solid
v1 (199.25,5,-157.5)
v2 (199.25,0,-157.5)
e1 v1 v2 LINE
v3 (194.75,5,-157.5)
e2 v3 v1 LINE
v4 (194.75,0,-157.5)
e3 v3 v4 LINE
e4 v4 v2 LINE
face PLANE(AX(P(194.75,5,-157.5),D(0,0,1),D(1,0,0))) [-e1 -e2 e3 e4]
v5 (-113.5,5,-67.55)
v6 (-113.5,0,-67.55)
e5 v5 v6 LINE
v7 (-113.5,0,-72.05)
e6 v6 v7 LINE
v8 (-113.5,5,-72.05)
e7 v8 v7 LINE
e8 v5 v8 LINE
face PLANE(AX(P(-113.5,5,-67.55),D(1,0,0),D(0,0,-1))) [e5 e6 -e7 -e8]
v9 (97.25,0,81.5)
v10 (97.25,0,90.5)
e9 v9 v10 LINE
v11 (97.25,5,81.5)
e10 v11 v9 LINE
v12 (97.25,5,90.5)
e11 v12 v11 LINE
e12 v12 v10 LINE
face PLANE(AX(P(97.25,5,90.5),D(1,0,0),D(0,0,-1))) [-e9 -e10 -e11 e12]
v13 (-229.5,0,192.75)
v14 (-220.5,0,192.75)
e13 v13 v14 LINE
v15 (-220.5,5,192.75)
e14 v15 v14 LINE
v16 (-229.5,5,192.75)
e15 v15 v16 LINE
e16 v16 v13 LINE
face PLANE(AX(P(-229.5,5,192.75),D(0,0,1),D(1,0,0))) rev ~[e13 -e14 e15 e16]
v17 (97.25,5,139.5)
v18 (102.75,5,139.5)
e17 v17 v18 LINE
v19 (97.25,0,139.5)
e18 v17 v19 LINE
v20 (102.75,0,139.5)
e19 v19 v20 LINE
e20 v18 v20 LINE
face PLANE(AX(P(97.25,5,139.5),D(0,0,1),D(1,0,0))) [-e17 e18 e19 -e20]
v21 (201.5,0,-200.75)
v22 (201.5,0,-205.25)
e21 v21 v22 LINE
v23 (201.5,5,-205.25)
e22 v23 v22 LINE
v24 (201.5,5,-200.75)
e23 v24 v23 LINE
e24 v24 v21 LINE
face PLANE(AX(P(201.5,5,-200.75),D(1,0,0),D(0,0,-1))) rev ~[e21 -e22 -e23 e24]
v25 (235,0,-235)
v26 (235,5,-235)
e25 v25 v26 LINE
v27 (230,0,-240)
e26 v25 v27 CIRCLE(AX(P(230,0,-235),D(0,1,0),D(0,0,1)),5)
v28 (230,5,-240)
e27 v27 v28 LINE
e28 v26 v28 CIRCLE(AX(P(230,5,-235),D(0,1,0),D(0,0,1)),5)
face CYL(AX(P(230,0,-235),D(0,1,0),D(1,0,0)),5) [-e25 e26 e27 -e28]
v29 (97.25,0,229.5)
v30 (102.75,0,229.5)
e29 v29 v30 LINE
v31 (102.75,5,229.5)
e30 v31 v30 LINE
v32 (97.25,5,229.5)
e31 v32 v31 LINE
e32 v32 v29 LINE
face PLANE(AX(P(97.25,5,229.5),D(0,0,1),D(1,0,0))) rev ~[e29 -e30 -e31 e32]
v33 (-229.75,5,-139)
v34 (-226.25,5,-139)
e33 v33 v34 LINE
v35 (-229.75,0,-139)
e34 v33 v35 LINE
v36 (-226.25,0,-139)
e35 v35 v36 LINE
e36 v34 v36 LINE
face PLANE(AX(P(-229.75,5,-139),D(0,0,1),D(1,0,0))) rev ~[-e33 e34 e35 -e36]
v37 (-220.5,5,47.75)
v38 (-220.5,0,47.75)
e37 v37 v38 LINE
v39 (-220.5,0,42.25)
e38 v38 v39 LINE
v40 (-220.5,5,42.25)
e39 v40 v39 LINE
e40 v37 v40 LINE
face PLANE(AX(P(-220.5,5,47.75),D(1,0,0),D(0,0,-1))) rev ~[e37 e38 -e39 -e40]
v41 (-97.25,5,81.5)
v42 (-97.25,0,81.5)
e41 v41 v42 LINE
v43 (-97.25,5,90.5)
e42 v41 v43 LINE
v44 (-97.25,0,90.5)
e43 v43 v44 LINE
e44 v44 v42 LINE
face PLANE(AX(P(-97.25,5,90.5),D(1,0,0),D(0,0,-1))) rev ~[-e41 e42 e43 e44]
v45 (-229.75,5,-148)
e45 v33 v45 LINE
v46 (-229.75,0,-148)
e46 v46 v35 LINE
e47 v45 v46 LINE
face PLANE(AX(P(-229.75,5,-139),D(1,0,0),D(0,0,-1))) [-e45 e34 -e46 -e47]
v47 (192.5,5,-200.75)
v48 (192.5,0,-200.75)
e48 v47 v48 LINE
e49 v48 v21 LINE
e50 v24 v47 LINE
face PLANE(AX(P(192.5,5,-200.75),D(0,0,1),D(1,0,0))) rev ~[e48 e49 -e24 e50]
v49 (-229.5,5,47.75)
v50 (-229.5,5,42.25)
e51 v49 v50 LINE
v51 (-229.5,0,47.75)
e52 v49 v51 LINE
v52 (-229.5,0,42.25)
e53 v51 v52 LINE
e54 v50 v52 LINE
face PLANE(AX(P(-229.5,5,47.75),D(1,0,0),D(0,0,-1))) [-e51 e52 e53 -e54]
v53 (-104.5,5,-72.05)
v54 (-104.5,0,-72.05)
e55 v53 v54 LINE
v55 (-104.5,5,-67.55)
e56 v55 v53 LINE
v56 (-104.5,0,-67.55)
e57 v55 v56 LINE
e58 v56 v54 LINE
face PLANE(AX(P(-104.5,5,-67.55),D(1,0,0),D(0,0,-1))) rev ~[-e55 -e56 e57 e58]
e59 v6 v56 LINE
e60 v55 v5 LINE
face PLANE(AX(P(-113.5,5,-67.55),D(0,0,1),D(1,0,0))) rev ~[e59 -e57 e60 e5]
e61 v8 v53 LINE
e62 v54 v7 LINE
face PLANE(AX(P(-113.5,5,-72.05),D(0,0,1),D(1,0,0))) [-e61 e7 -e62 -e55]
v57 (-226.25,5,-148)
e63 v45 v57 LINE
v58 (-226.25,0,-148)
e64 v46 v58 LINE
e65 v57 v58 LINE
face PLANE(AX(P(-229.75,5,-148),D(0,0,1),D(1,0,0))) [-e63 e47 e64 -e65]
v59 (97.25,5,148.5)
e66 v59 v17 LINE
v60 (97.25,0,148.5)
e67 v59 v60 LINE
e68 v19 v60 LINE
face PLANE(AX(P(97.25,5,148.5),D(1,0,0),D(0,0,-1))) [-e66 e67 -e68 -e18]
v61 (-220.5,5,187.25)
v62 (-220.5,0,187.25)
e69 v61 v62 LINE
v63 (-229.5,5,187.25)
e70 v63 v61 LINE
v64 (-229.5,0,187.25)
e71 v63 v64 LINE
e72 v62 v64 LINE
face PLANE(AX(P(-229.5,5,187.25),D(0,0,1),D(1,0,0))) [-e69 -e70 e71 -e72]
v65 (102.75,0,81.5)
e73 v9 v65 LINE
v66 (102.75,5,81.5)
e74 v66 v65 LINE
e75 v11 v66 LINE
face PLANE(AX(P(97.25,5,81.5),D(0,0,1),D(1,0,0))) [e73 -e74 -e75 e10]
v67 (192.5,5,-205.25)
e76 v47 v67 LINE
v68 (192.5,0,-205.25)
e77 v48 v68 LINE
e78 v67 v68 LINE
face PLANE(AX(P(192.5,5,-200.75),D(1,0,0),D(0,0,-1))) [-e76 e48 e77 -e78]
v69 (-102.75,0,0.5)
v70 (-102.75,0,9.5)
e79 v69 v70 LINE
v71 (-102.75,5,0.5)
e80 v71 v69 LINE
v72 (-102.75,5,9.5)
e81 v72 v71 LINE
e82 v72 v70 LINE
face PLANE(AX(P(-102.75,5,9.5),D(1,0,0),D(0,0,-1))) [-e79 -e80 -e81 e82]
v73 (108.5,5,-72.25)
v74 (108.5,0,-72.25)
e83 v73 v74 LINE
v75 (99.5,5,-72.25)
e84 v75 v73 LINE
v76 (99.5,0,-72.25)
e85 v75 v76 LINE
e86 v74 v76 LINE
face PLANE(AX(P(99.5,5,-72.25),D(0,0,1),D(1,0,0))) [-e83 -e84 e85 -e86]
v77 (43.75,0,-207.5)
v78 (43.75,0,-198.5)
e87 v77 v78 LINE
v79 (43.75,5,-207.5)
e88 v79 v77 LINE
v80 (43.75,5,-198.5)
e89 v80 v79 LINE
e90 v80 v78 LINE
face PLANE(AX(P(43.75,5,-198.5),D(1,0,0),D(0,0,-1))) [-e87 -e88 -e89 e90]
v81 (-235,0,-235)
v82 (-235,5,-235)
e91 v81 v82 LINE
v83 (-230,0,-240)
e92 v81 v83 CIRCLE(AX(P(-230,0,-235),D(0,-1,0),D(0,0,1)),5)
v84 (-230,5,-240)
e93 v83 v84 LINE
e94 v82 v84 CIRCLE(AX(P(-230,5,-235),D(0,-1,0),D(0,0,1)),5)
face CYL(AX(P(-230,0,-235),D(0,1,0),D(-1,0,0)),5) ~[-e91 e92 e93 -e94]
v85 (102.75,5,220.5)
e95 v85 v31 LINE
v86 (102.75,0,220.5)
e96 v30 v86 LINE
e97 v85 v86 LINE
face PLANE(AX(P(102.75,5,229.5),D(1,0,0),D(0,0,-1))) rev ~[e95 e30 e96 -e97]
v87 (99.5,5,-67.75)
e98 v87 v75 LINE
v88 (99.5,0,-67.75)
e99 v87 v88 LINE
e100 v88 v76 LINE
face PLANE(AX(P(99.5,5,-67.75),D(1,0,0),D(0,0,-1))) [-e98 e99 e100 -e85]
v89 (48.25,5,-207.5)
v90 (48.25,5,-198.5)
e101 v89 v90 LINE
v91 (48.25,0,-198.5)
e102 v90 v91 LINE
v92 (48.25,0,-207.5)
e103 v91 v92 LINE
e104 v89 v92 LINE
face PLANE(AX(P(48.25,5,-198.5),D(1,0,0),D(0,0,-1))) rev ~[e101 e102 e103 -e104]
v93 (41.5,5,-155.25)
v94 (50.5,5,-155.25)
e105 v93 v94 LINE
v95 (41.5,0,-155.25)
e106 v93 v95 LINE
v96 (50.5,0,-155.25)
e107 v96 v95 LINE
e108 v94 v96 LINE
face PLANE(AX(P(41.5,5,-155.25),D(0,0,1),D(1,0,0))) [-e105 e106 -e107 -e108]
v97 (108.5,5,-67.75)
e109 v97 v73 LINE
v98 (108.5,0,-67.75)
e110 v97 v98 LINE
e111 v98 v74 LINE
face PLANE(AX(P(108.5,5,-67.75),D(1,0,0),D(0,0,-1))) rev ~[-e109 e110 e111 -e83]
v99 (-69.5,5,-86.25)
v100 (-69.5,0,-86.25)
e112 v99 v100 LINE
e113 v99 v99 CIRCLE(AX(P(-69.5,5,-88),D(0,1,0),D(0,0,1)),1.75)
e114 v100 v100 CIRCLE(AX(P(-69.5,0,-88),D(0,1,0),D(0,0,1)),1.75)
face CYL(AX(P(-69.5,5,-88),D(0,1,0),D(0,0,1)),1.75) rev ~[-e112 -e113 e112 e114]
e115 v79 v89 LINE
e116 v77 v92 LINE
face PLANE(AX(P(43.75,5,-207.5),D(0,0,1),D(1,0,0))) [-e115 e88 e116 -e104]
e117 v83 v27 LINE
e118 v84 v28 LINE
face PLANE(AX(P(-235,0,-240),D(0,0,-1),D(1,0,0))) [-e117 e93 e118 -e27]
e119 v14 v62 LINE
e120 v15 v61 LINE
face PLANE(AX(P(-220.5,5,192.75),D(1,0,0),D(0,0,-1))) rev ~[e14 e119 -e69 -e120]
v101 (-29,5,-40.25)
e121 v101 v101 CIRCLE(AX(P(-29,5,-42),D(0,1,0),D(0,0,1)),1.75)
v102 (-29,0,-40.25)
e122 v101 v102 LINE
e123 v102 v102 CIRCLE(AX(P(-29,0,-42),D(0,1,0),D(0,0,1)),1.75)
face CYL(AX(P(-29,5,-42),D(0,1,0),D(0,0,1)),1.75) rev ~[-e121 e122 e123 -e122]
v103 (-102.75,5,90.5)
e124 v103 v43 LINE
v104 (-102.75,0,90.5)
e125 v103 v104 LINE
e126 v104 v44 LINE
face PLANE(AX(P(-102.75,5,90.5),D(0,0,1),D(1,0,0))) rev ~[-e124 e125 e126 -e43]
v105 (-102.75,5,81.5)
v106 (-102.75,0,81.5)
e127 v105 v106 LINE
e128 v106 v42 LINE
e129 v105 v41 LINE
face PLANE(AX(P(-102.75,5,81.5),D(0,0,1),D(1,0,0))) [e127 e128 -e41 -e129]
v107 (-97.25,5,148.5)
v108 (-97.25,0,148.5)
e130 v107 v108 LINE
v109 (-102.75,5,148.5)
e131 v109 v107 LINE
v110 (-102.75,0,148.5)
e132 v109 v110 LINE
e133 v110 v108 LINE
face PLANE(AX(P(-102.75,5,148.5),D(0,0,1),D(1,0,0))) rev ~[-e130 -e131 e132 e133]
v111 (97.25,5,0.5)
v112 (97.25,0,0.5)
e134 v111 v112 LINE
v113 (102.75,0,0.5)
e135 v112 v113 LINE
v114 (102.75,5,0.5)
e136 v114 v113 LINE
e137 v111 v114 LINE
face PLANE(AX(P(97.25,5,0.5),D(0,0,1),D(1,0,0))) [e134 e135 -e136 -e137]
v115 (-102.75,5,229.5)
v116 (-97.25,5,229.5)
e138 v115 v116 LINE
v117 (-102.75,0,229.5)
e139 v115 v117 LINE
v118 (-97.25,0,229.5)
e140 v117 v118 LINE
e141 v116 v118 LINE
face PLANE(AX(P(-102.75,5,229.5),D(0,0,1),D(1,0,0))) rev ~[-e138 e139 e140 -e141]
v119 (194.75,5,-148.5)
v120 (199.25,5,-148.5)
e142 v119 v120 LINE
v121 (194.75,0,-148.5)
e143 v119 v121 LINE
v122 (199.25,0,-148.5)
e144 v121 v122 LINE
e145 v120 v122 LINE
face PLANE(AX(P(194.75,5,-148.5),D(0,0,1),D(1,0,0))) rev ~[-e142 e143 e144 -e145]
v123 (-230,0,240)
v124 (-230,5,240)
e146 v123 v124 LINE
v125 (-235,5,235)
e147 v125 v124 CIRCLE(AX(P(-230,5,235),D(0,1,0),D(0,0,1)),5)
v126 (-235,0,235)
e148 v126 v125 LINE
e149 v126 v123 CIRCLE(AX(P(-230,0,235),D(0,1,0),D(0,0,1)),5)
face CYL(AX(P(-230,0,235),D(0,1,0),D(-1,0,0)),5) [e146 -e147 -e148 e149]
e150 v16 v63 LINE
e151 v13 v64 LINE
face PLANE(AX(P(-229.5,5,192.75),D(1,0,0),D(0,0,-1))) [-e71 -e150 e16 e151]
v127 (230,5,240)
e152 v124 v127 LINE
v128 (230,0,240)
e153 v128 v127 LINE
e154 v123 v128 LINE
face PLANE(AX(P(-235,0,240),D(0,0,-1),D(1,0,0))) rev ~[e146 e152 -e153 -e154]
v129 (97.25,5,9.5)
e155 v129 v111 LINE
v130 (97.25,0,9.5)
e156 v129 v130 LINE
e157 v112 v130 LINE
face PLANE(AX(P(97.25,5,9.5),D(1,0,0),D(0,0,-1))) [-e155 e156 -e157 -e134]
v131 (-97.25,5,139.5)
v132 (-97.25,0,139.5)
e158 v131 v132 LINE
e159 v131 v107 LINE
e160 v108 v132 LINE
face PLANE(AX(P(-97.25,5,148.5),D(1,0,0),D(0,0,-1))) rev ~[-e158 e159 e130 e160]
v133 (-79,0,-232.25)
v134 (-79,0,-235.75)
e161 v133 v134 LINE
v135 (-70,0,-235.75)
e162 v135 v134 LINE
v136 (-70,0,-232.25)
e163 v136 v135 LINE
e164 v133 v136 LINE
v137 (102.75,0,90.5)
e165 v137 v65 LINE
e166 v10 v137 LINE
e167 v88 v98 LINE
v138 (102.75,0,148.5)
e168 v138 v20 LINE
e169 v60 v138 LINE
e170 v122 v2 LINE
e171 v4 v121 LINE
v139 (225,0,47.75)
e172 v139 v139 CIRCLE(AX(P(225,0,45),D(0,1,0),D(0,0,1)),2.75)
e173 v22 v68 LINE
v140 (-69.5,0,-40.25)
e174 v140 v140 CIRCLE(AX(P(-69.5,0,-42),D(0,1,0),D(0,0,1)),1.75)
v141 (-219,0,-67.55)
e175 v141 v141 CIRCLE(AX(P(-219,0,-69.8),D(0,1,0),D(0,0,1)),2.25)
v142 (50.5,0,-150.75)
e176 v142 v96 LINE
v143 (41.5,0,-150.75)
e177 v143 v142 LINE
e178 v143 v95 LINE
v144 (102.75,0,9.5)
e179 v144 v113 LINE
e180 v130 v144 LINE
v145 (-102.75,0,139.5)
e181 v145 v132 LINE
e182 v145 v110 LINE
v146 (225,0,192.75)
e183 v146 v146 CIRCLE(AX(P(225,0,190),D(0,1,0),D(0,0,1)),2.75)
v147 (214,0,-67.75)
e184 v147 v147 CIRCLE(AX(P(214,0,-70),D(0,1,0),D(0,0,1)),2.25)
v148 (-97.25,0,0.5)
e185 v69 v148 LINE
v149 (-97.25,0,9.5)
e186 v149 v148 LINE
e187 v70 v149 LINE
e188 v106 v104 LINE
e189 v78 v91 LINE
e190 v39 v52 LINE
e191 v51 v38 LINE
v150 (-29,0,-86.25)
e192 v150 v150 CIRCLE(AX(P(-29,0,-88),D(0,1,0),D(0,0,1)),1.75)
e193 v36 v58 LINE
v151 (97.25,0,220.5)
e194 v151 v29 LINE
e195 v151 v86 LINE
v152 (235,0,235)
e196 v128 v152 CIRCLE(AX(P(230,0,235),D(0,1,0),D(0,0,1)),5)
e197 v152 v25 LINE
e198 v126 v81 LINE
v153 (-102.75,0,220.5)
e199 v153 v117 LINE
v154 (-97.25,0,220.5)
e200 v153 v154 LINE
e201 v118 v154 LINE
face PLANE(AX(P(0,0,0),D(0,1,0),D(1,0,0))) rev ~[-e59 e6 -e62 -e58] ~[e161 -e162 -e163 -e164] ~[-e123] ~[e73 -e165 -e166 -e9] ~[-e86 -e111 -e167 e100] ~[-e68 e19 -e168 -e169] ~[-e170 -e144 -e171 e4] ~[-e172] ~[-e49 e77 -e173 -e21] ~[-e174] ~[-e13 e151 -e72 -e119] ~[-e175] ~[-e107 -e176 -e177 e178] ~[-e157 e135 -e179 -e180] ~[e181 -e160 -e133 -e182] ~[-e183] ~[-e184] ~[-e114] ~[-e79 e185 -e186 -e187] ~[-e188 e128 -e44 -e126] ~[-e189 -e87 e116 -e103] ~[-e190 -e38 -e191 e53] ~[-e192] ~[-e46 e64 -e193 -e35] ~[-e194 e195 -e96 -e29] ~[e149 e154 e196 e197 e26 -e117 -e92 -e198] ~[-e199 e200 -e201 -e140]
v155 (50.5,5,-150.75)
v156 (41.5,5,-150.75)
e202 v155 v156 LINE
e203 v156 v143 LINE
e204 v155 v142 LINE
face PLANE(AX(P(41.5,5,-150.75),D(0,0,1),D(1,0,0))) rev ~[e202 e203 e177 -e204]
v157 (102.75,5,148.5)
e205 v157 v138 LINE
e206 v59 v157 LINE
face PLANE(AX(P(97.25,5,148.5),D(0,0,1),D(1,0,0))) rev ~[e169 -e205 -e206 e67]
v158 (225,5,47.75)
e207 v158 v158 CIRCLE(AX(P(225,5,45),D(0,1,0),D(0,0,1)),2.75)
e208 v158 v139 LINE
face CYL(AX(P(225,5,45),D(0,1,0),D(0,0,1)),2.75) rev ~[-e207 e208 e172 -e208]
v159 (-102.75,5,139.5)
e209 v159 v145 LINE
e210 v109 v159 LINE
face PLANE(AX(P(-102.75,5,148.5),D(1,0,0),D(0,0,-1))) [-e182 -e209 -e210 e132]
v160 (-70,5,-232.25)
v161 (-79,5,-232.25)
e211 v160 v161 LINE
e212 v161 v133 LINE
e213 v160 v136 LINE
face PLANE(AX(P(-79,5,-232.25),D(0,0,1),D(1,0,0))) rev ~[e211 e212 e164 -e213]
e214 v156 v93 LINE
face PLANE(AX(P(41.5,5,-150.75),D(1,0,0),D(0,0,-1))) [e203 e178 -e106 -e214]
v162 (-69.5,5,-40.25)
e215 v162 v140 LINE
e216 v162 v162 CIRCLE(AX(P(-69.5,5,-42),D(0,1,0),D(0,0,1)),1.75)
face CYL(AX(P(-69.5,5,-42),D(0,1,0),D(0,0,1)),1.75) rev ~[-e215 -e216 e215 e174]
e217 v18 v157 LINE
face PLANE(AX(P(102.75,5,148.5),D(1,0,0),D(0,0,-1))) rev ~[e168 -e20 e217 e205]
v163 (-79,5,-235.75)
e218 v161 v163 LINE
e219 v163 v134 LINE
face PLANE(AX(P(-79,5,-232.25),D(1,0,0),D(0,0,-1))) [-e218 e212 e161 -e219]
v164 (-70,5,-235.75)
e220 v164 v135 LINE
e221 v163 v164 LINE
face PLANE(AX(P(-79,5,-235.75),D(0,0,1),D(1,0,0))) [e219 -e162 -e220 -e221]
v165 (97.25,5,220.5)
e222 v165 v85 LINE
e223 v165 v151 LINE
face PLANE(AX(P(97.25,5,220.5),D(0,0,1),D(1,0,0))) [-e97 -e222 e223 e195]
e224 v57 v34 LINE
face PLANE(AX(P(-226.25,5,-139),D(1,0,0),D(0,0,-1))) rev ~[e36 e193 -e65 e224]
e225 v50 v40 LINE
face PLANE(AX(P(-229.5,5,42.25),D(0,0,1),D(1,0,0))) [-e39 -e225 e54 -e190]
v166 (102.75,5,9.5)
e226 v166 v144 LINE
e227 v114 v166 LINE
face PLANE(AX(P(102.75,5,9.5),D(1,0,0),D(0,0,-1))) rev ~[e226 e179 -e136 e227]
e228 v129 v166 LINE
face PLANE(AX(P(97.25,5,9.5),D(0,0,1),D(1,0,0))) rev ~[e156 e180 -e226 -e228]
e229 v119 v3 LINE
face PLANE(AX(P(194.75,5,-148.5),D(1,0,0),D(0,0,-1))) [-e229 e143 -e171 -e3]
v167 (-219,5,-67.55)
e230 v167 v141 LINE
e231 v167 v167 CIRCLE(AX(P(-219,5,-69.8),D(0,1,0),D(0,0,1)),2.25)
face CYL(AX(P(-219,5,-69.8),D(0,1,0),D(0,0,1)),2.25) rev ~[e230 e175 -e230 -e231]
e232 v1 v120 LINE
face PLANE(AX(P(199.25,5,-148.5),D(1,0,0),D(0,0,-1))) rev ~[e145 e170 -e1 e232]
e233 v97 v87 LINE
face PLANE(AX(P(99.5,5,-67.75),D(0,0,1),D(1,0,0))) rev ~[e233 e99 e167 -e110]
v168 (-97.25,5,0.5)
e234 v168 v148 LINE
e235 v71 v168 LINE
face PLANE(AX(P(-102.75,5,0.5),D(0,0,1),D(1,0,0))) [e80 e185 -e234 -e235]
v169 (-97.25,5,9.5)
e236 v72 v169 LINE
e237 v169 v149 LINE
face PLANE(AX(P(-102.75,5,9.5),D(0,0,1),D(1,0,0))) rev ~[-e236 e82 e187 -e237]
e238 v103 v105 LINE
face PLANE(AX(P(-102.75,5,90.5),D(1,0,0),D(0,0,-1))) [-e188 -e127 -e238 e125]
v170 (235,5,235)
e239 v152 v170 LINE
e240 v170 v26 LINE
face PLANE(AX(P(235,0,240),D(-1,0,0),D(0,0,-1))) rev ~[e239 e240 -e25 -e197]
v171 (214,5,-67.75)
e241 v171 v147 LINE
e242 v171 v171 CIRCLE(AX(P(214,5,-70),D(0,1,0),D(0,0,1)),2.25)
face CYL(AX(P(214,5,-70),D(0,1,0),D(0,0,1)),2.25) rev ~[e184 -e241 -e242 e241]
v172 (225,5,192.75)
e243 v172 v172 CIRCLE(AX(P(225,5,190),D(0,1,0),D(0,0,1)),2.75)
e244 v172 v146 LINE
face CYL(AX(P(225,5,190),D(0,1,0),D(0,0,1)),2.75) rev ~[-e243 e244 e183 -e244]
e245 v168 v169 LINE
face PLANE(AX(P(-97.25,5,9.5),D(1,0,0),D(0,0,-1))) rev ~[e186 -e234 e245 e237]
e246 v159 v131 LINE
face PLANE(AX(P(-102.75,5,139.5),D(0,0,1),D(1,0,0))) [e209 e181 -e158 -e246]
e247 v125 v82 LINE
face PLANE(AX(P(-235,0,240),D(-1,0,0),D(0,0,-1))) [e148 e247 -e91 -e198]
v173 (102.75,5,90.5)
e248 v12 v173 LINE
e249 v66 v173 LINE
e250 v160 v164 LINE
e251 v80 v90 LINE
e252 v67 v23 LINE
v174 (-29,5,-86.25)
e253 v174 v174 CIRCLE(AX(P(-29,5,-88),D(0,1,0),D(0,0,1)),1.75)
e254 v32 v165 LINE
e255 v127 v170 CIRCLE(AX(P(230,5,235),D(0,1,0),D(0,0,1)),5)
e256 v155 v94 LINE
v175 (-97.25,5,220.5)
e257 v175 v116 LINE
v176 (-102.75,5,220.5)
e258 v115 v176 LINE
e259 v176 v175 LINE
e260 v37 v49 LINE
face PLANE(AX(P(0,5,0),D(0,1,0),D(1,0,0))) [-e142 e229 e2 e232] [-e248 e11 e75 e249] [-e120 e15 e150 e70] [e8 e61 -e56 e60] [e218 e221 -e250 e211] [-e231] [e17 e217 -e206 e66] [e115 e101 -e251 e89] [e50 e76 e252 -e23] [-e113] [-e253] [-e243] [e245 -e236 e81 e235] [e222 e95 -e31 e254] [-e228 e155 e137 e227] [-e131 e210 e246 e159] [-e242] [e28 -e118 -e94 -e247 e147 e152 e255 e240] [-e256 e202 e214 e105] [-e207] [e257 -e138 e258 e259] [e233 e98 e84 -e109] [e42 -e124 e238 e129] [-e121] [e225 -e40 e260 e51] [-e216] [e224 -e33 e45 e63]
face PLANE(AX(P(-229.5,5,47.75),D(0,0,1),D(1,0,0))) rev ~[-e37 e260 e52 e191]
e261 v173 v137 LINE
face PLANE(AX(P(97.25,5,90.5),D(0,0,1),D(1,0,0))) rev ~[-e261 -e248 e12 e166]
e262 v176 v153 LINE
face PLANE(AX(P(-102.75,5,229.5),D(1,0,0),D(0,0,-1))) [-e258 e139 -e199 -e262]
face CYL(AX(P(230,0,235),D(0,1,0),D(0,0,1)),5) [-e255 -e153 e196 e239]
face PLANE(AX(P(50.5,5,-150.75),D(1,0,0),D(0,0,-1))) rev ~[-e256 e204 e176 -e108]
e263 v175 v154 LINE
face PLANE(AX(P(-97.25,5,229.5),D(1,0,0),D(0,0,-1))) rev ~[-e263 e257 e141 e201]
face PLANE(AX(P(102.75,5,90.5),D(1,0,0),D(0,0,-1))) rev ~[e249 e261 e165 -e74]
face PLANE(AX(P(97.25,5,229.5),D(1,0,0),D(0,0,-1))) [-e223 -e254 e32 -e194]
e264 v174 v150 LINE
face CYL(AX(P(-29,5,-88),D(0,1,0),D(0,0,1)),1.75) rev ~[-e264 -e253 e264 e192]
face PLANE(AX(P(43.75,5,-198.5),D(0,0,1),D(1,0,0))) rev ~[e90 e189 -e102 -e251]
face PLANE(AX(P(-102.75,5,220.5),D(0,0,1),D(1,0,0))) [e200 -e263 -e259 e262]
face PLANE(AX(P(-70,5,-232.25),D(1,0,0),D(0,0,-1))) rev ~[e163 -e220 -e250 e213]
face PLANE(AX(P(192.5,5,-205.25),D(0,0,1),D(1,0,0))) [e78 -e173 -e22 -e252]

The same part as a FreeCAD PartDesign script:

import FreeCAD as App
import Part
import Sketcher
Q = App.Units.Quantity


def edges_at(feature, points):
    """Names of the edges that pass closest to the given points."""
    edges = feature.Shape.Edges
    near = lambda p: min(range(len(edges)), key=lambda i: edges[i].distToShape(Part.Vertex(*p))[0])
    return sorted({f"Edge{near(p) + 1}" for p in points})

doc = App.newDocument("Part")
body = doc.addObject("PartDesign::Body", "Body")

# Sketch on XZ plane
sketch1 = body.newObject("Sketcher::SketchObject", "Sketch")
sketch1.AttachmentSupport = (doc.getObject("XZ_Plane"), [""])
sketch1.MapMode = "FlatFace"
sketch1.addGeometry([
    Part.LineSegment(App.Vector(-235, -240, 0), App.Vector(-235, 240, 0)),
    Part.LineSegment(App.Vector(-235, 240, 0), App.Vector(235, 240, 0)),
    Part.LineSegment(App.Vector(235, 240, 0), App.Vector(235, -240, 0)),
    Part.LineSegment(App.Vector(235, -240, 0), App.Vector(-235, -240, 0)),
], False)
sketch1.addConstraint([
    Sketcher.Constraint("Coincident", 0, 2, 1, 1),
    Sketcher.Constraint("Coincident", 1, 2, 2, 1),
    Sketcher.Constraint("Coincident", 2, 2, 3, 1),
    Sketcher.Constraint("Coincident", 3, 2, 0, 1),
    Sketcher.Constraint("Vertical", 0),
    Sketcher.Constraint("Horizontal", 1),
    Sketcher.Constraint("Vertical", 2),
    Sketcher.Constraint("Horizontal", 3),
    Sketcher.Constraint("Symmetric", 0, 2, 2, 2, -1, 1),
    Sketcher.Constraint("DistanceX", 1, 1, 1, 2, Q("470 mm")),
    Sketcher.Constraint("DistanceY", 0, 1, 0, 2, Q("480 mm")),
])
pad1 = body.newObject("PartDesign::Pad", "Pad")
pad1.Profile = sketch1
pad1.Length = 5
pad1.Reversed = True
doc.recompute()

fillet = body.newObject("PartDesign::Fillet", "Fillet")
fillet.Base = (pad1, edges_at(pad1, [
    (235, 2.5, 240),
    (-235, 2.5, 240),
    (-235, 2.5, -240),
    (235, 2.5, -240),
]))
fillet.Radius = 5

# Sketch on XZ plane
sketch2 = body.newObject("Sketcher::SketchObject", "Sketch001")
sketch2.AttachmentSupport = (doc.getObject("XZ_Plane"), [""])
sketch2.MapMode = "FlatFace"
sketch2.AttachmentOffset = App.Placement(App.Vector(0, 0, -5), App.Rotation())
sketch2.addGeometry([
    Part.Circle(App.Vector(197, -153, 0), App.Vector(0, 0, 1), 2.25),  # 0
    Part.Circle(App.Vector(46, -153, 0), App.Vector(0, 0, 1), 2.25),  # 1
    Part.Circle(App.Vector(197, -203, 0), App.Vector(0, 0, 1), 2.25),  # 2
    Part.Circle(App.Vector(46, -203, 0), App.Vector(0, 0, 1), 2.25),  # 3
    Part.Circle(App.Vector(-228, -143.5, 0), App.Vector(0, 0, 1), 1.75),  # 4
    Part.Circle(App.Vector(-74.5, -234, 0), App.Vector(0, 0, 1), 1.75),  # 5
    Part.Circle(App.Vector(-219, -69.8, 0), App.Vector(0, 0, 1), 2.25),  # 6
    Part.Circle(App.Vector(-109, -69.8, 0), App.Vector(0, 0, 1), 2.25),  # 7
    Part.Circle(App.Vector(-69.5, -42, 0), App.Vector(0, 0, 1), 1.75),  # 8
    Part.Circle(App.Vector(-69.5, -88, 0), App.Vector(0, 0, 1), 1.75),  # 9
    Part.Circle(App.Vector(-29, -42, 0), App.Vector(0, 0, 1), 1.75),  # 10
    Part.Circle(App.Vector(-29, -88, 0), App.Vector(0, 0, 1), 1.75),  # 11
    Part.Circle(App.Vector(214, -70, 0), App.Vector(0, 0, 1), 2.25),  # 12
    Part.Circle(App.Vector(104, -70, 0), App.Vector(0, 0, 1), 2.25),  # 13
    Part.Circle(App.Vector(225, 190, 0), App.Vector(0, 0, 1), 2.75),  # 14
    Part.Circle(App.Vector(225, 45, 0), App.Vector(0, 0, 1), 2.75),  # 15
    Part.Circle(App.Vector(100, 5, 0), App.Vector(0, 0, 1), 2.75),  # 16
    Part.Circle(App.Vector(100, 225, 0), App.Vector(0, 0, 1), 2.75),  # 17
    Part.Circle(App.Vector(100, 144, 0), App.Vector(0, 0, 1), 2.75),  # 18
    Part.Circle(App.Vector(100, 86, 0), App.Vector(0, 0, 1), 2.75),  # 19
    Part.Circle(App.Vector(-100, 5, 0), App.Vector(0, 0, 1), 2.75),  # 20
    Part.Circle(App.Vector(-100, 86, 0), App.Vector(0, 0, 1), 2.75),  # 21
    Part.Circle(App.Vector(-100, 144, 0), App.Vector(0, 0, 1), 2.75),  # 22
    Part.Circle(App.Vector(-100, 225, 0), App.Vector(0, 0, 1), 2.75),  # 23
    Part.Circle(App.Vector(-225, 45, 0), App.Vector(0, 0, 1), 2.75),  # 24
    Part.Circle(App.Vector(-225, 190, 0), App.Vector(0, 0, 1), 2.75),  # 25
], False)
sketch2.addConstraint([
    Sketcher.Constraint("Equal", 0, 1),
    Sketcher.Constraint("Equal", 1, 2),
    Sketcher.Constraint("Equal", 2, 3),
    Sketcher.Constraint("Equal", 4, 5),
    Sketcher.Constraint("Equal", 3, 6),
    Sketcher.Constraint("Equal", 6, 7),
    Sketcher.Constraint("Equal", 5, 8),
    Sketcher.Constraint("Equal", 8, 9),
    Sketcher.Constraint("Equal", 9, 10),
    Sketcher.Constraint("Equal", 10, 11),
    Sketcher.Constraint("Equal", 7, 12),
    Sketcher.Constraint("Equal", 12, 13),
    Sketcher.Constraint("Equal", 14, 15),
    Sketcher.Constraint("Equal", 15, 16),
    Sketcher.Constraint("Equal", 16, 17),
    Sketcher.Constraint("Equal", 17, 18),
    Sketcher.Constraint("Equal", 18, 19),
    Sketcher.Constraint("Equal", 19, 20),
    Sketcher.Constraint("Equal", 20, 21),
    Sketcher.Constraint("Equal", 21, 22),
    Sketcher.Constraint("Equal", 22, 23),
    Sketcher.Constraint("Equal", 23, 24),
    Sketcher.Constraint("Equal", 24, 25),
    Sketcher.Constraint("Symmetric", 16, 3, 20, 3, -2),
    Sketcher.Constraint("Symmetric", 19, 3, 21, 3, -2),
    Sketcher.Constraint("Symmetric", 18, 3, 22, 3, -2),
    Sketcher.Constraint("Symmetric", 17, 3, 23, 3, -2),
    Sketcher.Constraint("Symmetric", 15, 3, 24, 3, -2),
    Sketcher.Constraint("Symmetric", 14, 3, 25, 3, -2),
    Sketcher.Constraint("Horizontal", 0, 3, 1, 3),
    Sketcher.Constraint("Horizontal", 2, 3, 3, 3),
    Sketcher.Constraint("Horizontal", 6, 3, 7, 3),
    Sketcher.Constraint("Horizontal", 8, 3, 10, 3),
    Sketcher.Constraint("Horizontal", 9, 3, 11, 3),
    Sketcher.Constraint("Horizontal", 12, 3, 13, 3),
    Sketcher.Constraint("Vertical", 0, 3, 2, 3),
    Sketcher.Constraint("Vertical", 1, 3, 3, 3),
    Sketcher.Constraint("Vertical", 8, 3, 9, 3),
    Sketcher.Constraint("Vertical", 10, 3, 11, 3),
    Sketcher.Constraint("Vertical", 14, 3, 15, 3),
    Sketcher.Constraint("Vertical", 16, 3, 17, 3),
    Sketcher.Constraint("Vertical", 17, 3, 18, 3),
    Sketcher.Constraint("Vertical", 18, 3, 19, 3),
    Sketcher.Constraint("Diameter", 0, Q("4.5 mm")),
    Sketcher.Constraint("Diameter", 4, Q("3.5 mm")),
    Sketcher.Constraint("Diameter", 14, Q("5.5 mm")),
    Sketcher.Constraint("DistanceX", -1, 1, 0, 3, Q("197 mm")),
    Sketcher.Constraint("DistanceY", 0, 3, -1, 1, Q("153 mm")),
    Sketcher.Constraint("DistanceX", -1, 1, 1, 3, Q("46 mm")),
    Sketcher.Constraint("DistanceY", 2, 3, -1, 1, Q("203 mm")),
    Sketcher.Constraint("DistanceX", 4, 3, -1, 1, Q("228 mm")),
    Sketcher.Constraint("DistanceY", 5, 3, -1, 1, Q("234 mm")),
    Sketcher.Constraint("DistanceX", 6, 3, -1, 1, Q("219 mm")),
    Sketcher.Constraint("DistanceX", 7, 3, -1, 1, Q("109 mm")),
    Sketcher.Constraint("DistanceY", 8, 3, -1, 1, Q("42 mm")),
    Sketcher.Constraint("DistanceY", 9, 3, -1, 1, Q("88 mm")),
    Sketcher.Constraint("DistanceX", 10, 3, -1, 1, Q("29 mm")),
    Sketcher.Constraint("DistanceX", -1, 1, 12, 3, Q("214 mm")),
    Sketcher.Constraint("DistanceY", 12, 3, -1, 1, Q("70 mm")),
    Sketcher.Constraint("DistanceX", -1, 1, 13, 3, Q("104 mm")),
    Sketcher.Constraint("DistanceX", -1, 1, 14, 3, Q("225 mm")),
    Sketcher.Constraint("DistanceY", -1, 1, 14, 3, Q("190 mm")),
    Sketcher.Constraint("DistanceY", -1, 1, 15, 3, Q("45 mm")),
    Sketcher.Constraint("DistanceX", -1, 1, 16, 3, Q("100 mm")),
    Sketcher.Constraint("DistanceY", -1, 1, 16, 3, Q("5 mm")),
    Sketcher.Constraint("DistanceY", -1, 1, 17, 3, Q("225 mm")),
    Sketcher.Constraint("DistanceY", -1, 1, 18, 3, Q("144 mm")),
    Sketcher.Constraint("DistanceY", -1, 1, 19, 3, Q("86 mm")),
    Sketcher.Constraint("DistanceX", 5, 3, 8, 3, Q("5 mm")),
    Sketcher.Constraint("DistanceY", 4, 3, -1, 1, Q("143.5 mm")),
    Sketcher.Constraint("DistanceX", 5, 3, -1, 1, Q("74.5 mm")),
    Sketcher.Constraint("DistanceY", 6, 3, -1, 1, Q("69.8 mm")),
])
pocket1 = body.newObject("PartDesign::Pocket", "Pocket")
pocket1.Profile = sketch2
pocket1.Type = "ThroughAll"
pocket1.Reversed = True

# Sketch on XZ plane
sketch3 = body.newObject("Sketcher::SketchObject", "Sketch002")
sketch3.AttachmentSupport = (doc.getObject("XZ_Plane"), [""])
sketch3.MapMode = "FlatFace"
sketch3.AttachmentOffset = App.Placement(App.Vector(0, 0, -5), App.Rotation())
sketch3.addGeometry([
    Part.LineSegment(App.Vector(99.5, -72.25, 0), App.Vector(99.5, -67.75, 0)),  # 0
    Part.LineSegment(App.Vector(99.5, -67.75, 0), App.Vector(108.5, -67.75, 0)),  # 1
    Part.LineSegment(App.Vector(108.5, -67.75, 0), App.Vector(108.5, -72.25, 0)),  # 2
    Part.LineSegment(App.Vector(108.5, -72.25, 0), App.Vector(99.5, -72.25, 0)),  # 3
    Part.LineSegment(App.Vector(-113.5, -72.05, 0), App.Vector(-113.5, -67.55, 0)),  # 4
    Part.LineSegment(App.Vector(-113.5, -67.55, 0), App.Vector(-104.5, -67.55, 0)),  # 5
    Part.LineSegment(App.Vector(-104.5, -67.55, 0), App.Vector(-104.5, -72.05, 0)),  # 6
    Part.LineSegment(App.Vector(-104.5, -72.05, 0), App.Vector(-113.5, -72.05, 0)),  # 7
    Part.LineSegment(App.Vector(194.75, -157.5, 0), App.Vector(194.75, -148.5, 0)),  # 8
    Part.LineSegment(App.Vector(194.75, -148.5, 0), App.Vector(199.25, -148.5, 0)),  # 9
    Part.LineSegment(App.Vector(199.25, -148.5, 0), App.Vector(199.25, -157.5, 0)),  # 10
    Part.LineSegment(App.Vector(199.25, -157.5, 0), App.Vector(194.75, -157.5, 0)),  # 11
    Part.LineSegment(App.Vector(-79, -235.75, 0), App.Vector(-79, -232.25, 0)),  # 12
    Part.LineSegment(App.Vector(-79, -232.25, 0), App.Vector(-70, -232.25, 0)),  # 13
    Part.LineSegment(App.Vector(-70, -232.25, 0), App.Vector(-70, -235.75, 0)),  # 14
    Part.LineSegment(App.Vector(-70, -235.75, 0), App.Vector(-79, -235.75, 0)),  # 15
    Part.LineSegment(App.Vector(-229.75, -148, 0), App.Vector(-229.75, -139, 0)),  # 16
    Part.LineSegment(App.Vector(-229.75, -139, 0), App.Vector(-226.25, -139, 0)),  # 17
    Part.LineSegment(App.Vector(-226.25, -139, 0), App.Vector(-226.25, -148, 0)),  # 18
    Part.LineSegment(App.Vector(-226.25, -148, 0), App.Vector(-229.75, -148, 0)),  # 19
    Part.LineSegment(App.Vector(192.5, -205.25, 0), App.Vector(192.5, -200.75, 0)),  # 20
    Part.LineSegment(App.Vector(192.5, -200.75, 0), App.Vector(201.5, -200.75, 0)),  # 21
    Part.LineSegment(App.Vector(201.5, -200.75, 0), App.Vector(201.5, -205.25, 0)),  # 22
    Part.LineSegment(App.Vector(201.5, -205.25, 0), App.Vector(192.5, -205.25, 0)),  # 23
    Part.LineSegment(App.Vector(43.75, -207.5, 0), App.Vector(43.75, -198.5, 0)),  # 24
    Part.LineSegment(App.Vector(43.75, -198.5, 0), App.Vector(48.25, -198.5, 0)),  # 25
    Part.LineSegment(App.Vector(48.25, -198.5, 0), App.Vector(48.25, -207.5, 0)),  # 26
    Part.LineSegment(App.Vector(48.25, -207.5, 0), App.Vector(43.75, -207.5, 0)),  # 27
    Part.LineSegment(App.Vector(41.5, -155.25, 0), App.Vector(41.5, -150.75, 0)),  # 28
    Part.LineSegment(App.Vector(41.5, -150.75, 0), App.Vector(50.5, -150.75, 0)),  # 29
    Part.LineSegment(App.Vector(50.5, -150.75, 0), App.Vector(50.5, -155.25, 0)),  # 30
    Part.LineSegment(App.Vector(50.5, -155.25, 0), App.Vector(41.5, -155.25, 0)),  # 31
    Part.LineSegment(App.Vector(97.25, 220.5, 0), App.Vector(97.25, 229.5, 0)),  # 32
    Part.LineSegment(App.Vector(97.25, 229.5, 0), App.Vector(102.75, 229.5, 0)),  # 33
    Part.LineSegment(App.Vector(102.75, 229.5, 0), App.Vector(102.75, 220.5, 0)),  # 34
    Part.LineSegment(App.Vector(102.75, 220.5, 0), App.Vector(97.25, 220.5, 0)),  # 35
    Part.LineSegment(App.Vector(97.25, 139.5, 0), App.Vector(97.25, 148.5, 0)),  # 36
    Part.LineSegment(App.Vector(97.25, 148.5, 0), App.Vector(102.75, 148.5, 0)),  # 37
    Part.LineSegment(App.Vector(102.75, 148.5, 0), App.Vector(102.75, 139.5, 0)),  # 38
    Part.LineSegment(App.Vector(102.75, 139.5, 0), App.Vector(97.25, 139.5, 0)),  # 39
    Part.LineSegment(App.Vector(97.25, 81.5, 0), App.Vector(97.25, 90.5, 0)),  # 40
    Part.LineSegment(App.Vector(97.25, 90.5, 0), App.Vector(102.75, 90.5, 0)),  # 41
    Part.LineSegment(App.Vector(102.75, 90.5, 0), App.Vector(102.75, 81.5, 0)),  # 42
    Part.LineSegment(App.Vector(102.75, 81.5, 0), App.Vector(97.25, 81.5, 0)),  # 43
    Part.LineSegment(App.Vector(97.25, 0.5, 0), App.Vector(97.25, 9.5, 0)),  # 44
    Part.LineSegment(App.Vector(97.25, 9.5, 0), App.Vector(102.75, 9.5, 0)),  # 45
    Part.LineSegment(App.Vector(102.75, 9.5, 0), App.Vector(102.75, 0.5, 0)),  # 46
    Part.LineSegment(App.Vector(102.75, 0.5, 0), App.Vector(97.25, 0.5, 0)),  # 47
    Part.LineSegment(App.Vector(-229.5, 187.25, 0), App.Vector(-229.5, 192.75, 0)),  # 48
    Part.LineSegment(App.Vector(-229.5, 192.75, 0), App.Vector(-220.5, 192.75, 0)),  # 49
    Part.LineSegment(App.Vector(-220.5, 192.75, 0), App.Vector(-220.5, 187.25, 0)),  # 50
    Part.LineSegment(App.Vector(-220.5, 187.25, 0), App.Vector(-229.5, 187.25, 0)),  # 51
    Part.LineSegment(App.Vector(-229.5, 42.25, 0), App.Vector(-229.5, 47.75, 0)),  # 52
    Part.LineSegment(App.Vector(-229.5, 47.75, 0), App.Vector(-220.5, 47.75, 0)),  # 53
    Part.LineSegment(App.Vector(-220.5, 47.75, 0), App.Vector(-220.5, 42.25, 0)),  # 54
    Part.LineSegment(App.Vector(-220.5, 42.25, 0), App.Vector(-229.5, 42.25, 0)),  # 55
    Part.LineSegment(App.Vector(-102.75, 0.5, 0), App.Vector(-102.75, 9.5, 0)),  # 56
    Part.LineSegment(App.Vector(-102.75, 9.5, 0), App.Vector(-97.25, 9.5, 0)),  # 57
    Part.LineSegment(App.Vector(-97.25, 9.5, 0), App.Vector(-97.25, 0.5, 0)),  # 58
    Part.LineSegment(App.Vector(-97.25, 0.5, 0), App.Vector(-102.75, 0.5, 0)),  # 59
    Part.LineSegment(App.Vector(-102.75, 81.5, 0), App.Vector(-102.75, 90.5, 0)),  # 60
    Part.LineSegment(App.Vector(-102.75, 90.5, 0), App.Vector(-97.25, 90.5, 0)),  # 61
    Part.LineSegment(App.Vector(-97.25, 90.5, 0), App.Vector(-97.25, 81.5, 0)),  # 62
    Part.LineSegment(App.Vector(-97.25, 81.5, 0), App.Vector(-102.75, 81.5, 0)),  # 63
    Part.LineSegment(App.Vector(-102.75, 139.5, 0), App.Vector(-102.75, 148.5, 0)),  # 64
    Part.LineSegment(App.Vector(-102.75, 148.5, 0), App.Vector(-97.25, 148.5, 0)),  # 65
    Part.LineSegment(App.Vector(-97.25, 148.5, 0), App.Vector(-97.25, 139.5, 0)),  # 66
    Part.LineSegment(App.Vector(-97.25, 139.5, 0), App.Vector(-102.75, 139.5, 0)),  # 67
    Part.LineSegment(App.Vector(-102.75, 220.5, 0), App.Vector(-102.75, 229.5, 0)),  # 68
    Part.LineSegment(App.Vector(-102.75, 229.5, 0), App.Vector(-97.25, 229.5, 0)),  # 69
    Part.LineSegment(App.Vector(-97.25, 229.5, 0), App.Vector(-97.25, 220.5, 0)),  # 70
    Part.LineSegment(App.Vector(-97.25, 220.5, 0), App.Vector(-102.75, 220.5, 0)),  # 71
], False)
sketch3.addConstraint([
    Sketcher.Constraint("Coincident", 0, 2, 1, 1),
    Sketcher.Constraint("Coincident", 1, 2, 2, 1),
    Sketcher.Constraint("Coincident", 2, 2, 3, 1),
    Sketcher.Constraint("Coincident", 3, 2, 0, 1),
    Sketcher.Constraint("Coincident", 4, 2, 5, 1),
    Sketcher.Constraint("Coincident", 5, 2, 6, 1),
    Sketcher.Constraint("Coincident", 6, 2, 7, 1),
    Sketcher.Constraint("Coincident", 7, 2, 4, 1),
    Sketcher.Constraint("Coincident", 8, 2, 9, 1),
    Sketcher.Constraint("Coincident", 9, 2, 10, 1),
    Sketcher.Constraint("Coincident", 10, 2, 11, 1),
    Sketcher.Constraint("Coincident", 11, 2, 8, 1),
    Sketcher.Constraint("Coincident", 12, 2, 13, 1),
    Sketcher.Constraint("Coincident", 13, 2, 14, 1),
    Sketcher.Constraint("Coincident", 14, 2, 15, 1),
    Sketcher.Constraint("Coincident", 15, 2, 12, 1),
    Sketcher.Constraint("Coincident", 16, 2, 17, 1),
    Sketcher.Constraint("Coincident", 17, 2, 18, 1),
    Sketcher.Constraint("Coincident", 18, 2, 19, 1),
    Sketcher.Constraint("Coincident", 19, 2, 16, 1),
    Sketcher.Constraint("Coincident", 20, 2, 21, 1),
    Sketcher.Constraint("Coincident", 21, 2, 22, 1),
    Sketcher.Constraint("Coincident", 22, 2, 23, 1),
    Sketcher.Constraint("Coincident", 23, 2, 20, 1),
    Sketcher.Constraint("Coincident", 24, 2, 25, 1),
    Sketcher.Constraint("Coincident", 25, 2, 26, 1),
    Sketcher.Constraint("Coincident", 26, 2, 27, 1),
    Sketcher.Constraint("Coincident", 27, 2, 24, 1),
    Sketcher.Constraint("Coincident", 28, 2, 29, 1),
    Sketcher.Constraint("Coincident", 29, 2, 30, 1),
    Sketcher.Constraint("Coincident", 30, 2, 31, 1),
    Sketcher.Constraint("Coincident", 31, 2, 28, 1),
    Sketcher.Constraint("Coincident", 32, 2, 33, 1),
    Sketcher.Constraint("Coincident", 33, 2, 34, 1),
    Sketcher.Constraint("Coincident", 34, 2, 35, 1),
    Sketcher.Constraint("Coincident", 35, 2, 32, 1),
    Sketcher.Constraint("Coincident", 36, 2, 37, 1),
    Sketcher.Constraint("Coincident", 37, 2, 38, 1),
    Sketcher.Constraint("Coincident", 38, 2, 39, 1),
    Sketcher.Constraint("Coincident", 39, 2, 36, 1),
    Sketcher.Constraint("Coincident", 40, 2, 41, 1),
    Sketcher.Constraint("Coincident", 41, 2, 42, 1),
    Sketcher.Constraint("Coincident", 42, 2, 43, 1),
    Sketcher.Constraint("Coincident", 43, 2, 40, 1),
    Sketcher.Constraint("Coincident", 44, 2, 45, 1),
    Sketcher.Constraint("Coincident", 45, 2, 46, 1),
    Sketcher.Constraint("Coincident", 46, 2, 47, 1),
    Sketcher.Constraint("Coincident", 47, 2, 44, 1),
    Sketcher.Constraint("Coincident", 48, 2, 49, 1),
    Sketcher.Constraint("Coincident", 49, 2, 50, 1),
    Sketcher.Constraint("Coincident", 50, 2, 51, 1),
    Sketcher.Constraint("Coincident", 51, 2, 48, 1),
    Sketcher.Constraint("Coincident", 52, 2, 53, 1),
    Sketcher.Constraint("Coincident", 53, 2, 54, 1),
    Sketcher.Constraint("Coincident", 54, 2, 55, 1),
    Sketcher.Constraint("Coincident", 55, 2, 52, 1),
    Sketcher.Constraint("Coincident", 56, 2, 57, 1),
    Sketcher.Constraint("Coincident", 57, 2, 58, 1),
    Sketcher.Constraint("Coincident", 58, 2, 59, 1),
    Sketcher.Constraint("Coincident", 59, 2, 56, 1),
    Sketcher.Constraint("Coincident", 60, 2, 61, 1),
    Sketcher.Constraint("Coincident", 61, 2, 62, 1),
    Sketcher.Constraint("Coincident", 62, 2, 63, 1),
    Sketcher.Constraint("Coincident", 63, 2, 60, 1),
    Sketcher.Constraint("Coincident", 64, 2, 65, 1),
    Sketcher.Constraint("Coincident", 65, 2, 66, 1),
    Sketcher.Constraint("Coincident", 66, 2, 67, 1),
    Sketcher.Constraint("Coincident", 67, 2, 64, 1),
    Sketcher.Constraint("Coincident", 68, 2, 69, 1),
    Sketcher.Constraint("Coincident", 69, 2, 70, 1),
    Sketcher.Constraint("Coincident", 70, 2, 71, 1),
    Sketcher.Constraint("Coincident", 71, 2, 68, 1),
    Sketcher.Constraint("Vertical", 0),
    Sketcher.Constraint("Horizontal", 1),
    Sketcher.Constraint("Vertical", 2),
    Sketcher.Constraint("Horizontal", 3),
    Sketcher.Constraint("Vertical", 4),
    Sketcher.Constraint("Horizontal", 5),
    Sketcher.Constraint("Vertical", 6),
    Sketcher.Constraint("Horizontal", 7),
    Sketcher.Constraint("Vertical", 8),
    Sketcher.Constraint("Horizontal", 9),
    Sketcher.Constraint("Vertical", 10),
    Sketcher.Constraint("Horizontal", 11),
    Sketcher.Constraint("Vertical", 12),
    Sketcher.Constraint("Horizontal", 13),
    Sketcher.Constraint("Vertical", 14),
    Sketcher.Constraint("Horizontal", 15),
    Sketcher.Constraint("Vertical", 16),
    Sketcher.Constraint("Horizontal", 17),
    Sketcher.Constraint("Vertical", 18),
    Sketcher.Constraint("Horizontal", 19),
    Sketcher.Constraint("Vertical", 20),
    Sketcher.Constraint("Horizontal", 21),
    Sketcher.Constraint("Vertical", 22),
    Sketcher.Constraint("Horizontal", 23),
    Sketcher.Constraint("Vertical", 24),
    Sketcher.Constraint("Horizontal", 25),
    Sketcher.Constraint("Vertical", 26),
    Sketcher.Constraint("Horizontal", 27),
    Sketcher.Constraint("Vertical", 28),
    Sketcher.Constraint("Horizontal", 29),
    Sketcher.Constraint("Vertical", 30),
    Sketcher.Constraint("Horizontal", 31),
    Sketcher.Constraint("Vertical", 32),
    Sketcher.Constraint("Horizontal", 33),
    Sketcher.Constraint("Vertical", 34),
    Sketcher.Constraint("Horizontal", 35),
    Sketcher.Constraint("Vertical", 36),
    Sketcher.Constraint("Horizontal", 37),
    Sketcher.Constraint("Vertical", 38),
    Sketcher.Constraint("Horizontal", 39),
    Sketcher.Constraint("Vertical", 40),
    Sketcher.Constraint("Horizontal", 41),
    Sketcher.Constraint("Vertical", 42),
    Sketcher.Constraint("Horizontal", 43),
    Sketcher.Constraint("Vertical", 44),
    Sketcher.Constraint("Horizontal", 45),
    Sketcher.Constraint("Vertical", 46),
    Sketcher.Constraint("Horizontal", 47),
    Sketcher.Constraint("Vertical", 48),
    Sketcher.Constraint("Horizontal", 49),
    Sketcher.Constraint("Vertical", 50),
    Sketcher.Constraint("Horizontal", 51),
    Sketcher.Constraint("Vertical", 52),
    Sketcher.Constraint("Horizontal", 53),
    Sketcher.Constraint("Vertical", 54),
    Sketcher.Constraint("Horizontal", 55),
    Sketcher.Constraint("Vertical", 56),
    Sketcher.Constraint("Horizontal", 57),
    Sketcher.Constraint("Vertical", 58),
    Sketcher.Constraint("Horizontal", 59),
    Sketcher.Constraint("Vertical", 60),
    Sketcher.Constraint("Horizontal", 61),
    Sketcher.Constraint("Vertical", 62),
    Sketcher.Constraint("Horizontal", 63),
    Sketcher.Constraint("Vertical", 64),
    Sketcher.Constraint("Horizontal", 65),
    Sketcher.Constraint("Vertical", 66),
    Sketcher.Constraint("Horizontal", 67),
    Sketcher.Constraint("Vertical", 68),
    Sketcher.Constraint("Horizontal", 69),
    Sketcher.Constraint("Vertical", 70),
    Sketcher.Constraint("Horizontal", 71),
    Sketcher.Constraint("Symmetric", 45, 2, 56, 2, -2),
    Sketcher.Constraint("Symmetric", 47, 2, 58, 2, -2),
    Sketcher.Constraint("Symmetric", 41, 2, 60, 2, -2),
    Sketcher.Constraint("Symmetric", 43, 2, 62, 2, -2),
    Sketcher.Constraint("Symmetric", 37, 2, 64, 2, -2),
    Sketcher.Constraint("Symmetric", 39, 2, 66, 2, -2),
    Sketcher.Constraint("Symmetric", 33, 2, 68, 2, -2),
    Sketcher.Constraint("Symmetric", 35, 2, 70, 2, -2),
    Sketcher.Constraint("Vertical", 35, 2, 36, 2),
    Sketcher.Constraint("Vertical", 34, 2, 37, 2),
    Sketcher.Constraint("Vertical", 39, 2, 40, 2),
    Sketcher.Constraint("Vertical", 38, 2, 41, 2),
    Sketcher.Constraint("Vertical", 43, 2, 44, 2),
    Sketcher.Constraint("Vertical", 42, 2, 45, 2),
    Sketcher.Constraint("Vertical", 51, 2, 52, 2),
    Sketcher.Constraint("Vertical", 50, 2, 53, 2),
    Sketcher.Constraint("Equal", 3, 5),
    Sketcher.Constraint("Equal", 7, 13),
    Sketcher.Constraint("Equal", 15, 21),
    Sketcher.Constraint("Equal", 11, 25),
    Sketcher.Constraint("Equal", 23, 29),
    Sketcher.Constraint("Equal", 31, 49),
    Sketcher.Constraint("Equal", 27, 0),
    Sketcher.Constraint("Equal", 2, 4),
    Sketcher.Constraint("Equal", 55, 8),
    Sketcher.Constraint("Equal", 19, 12),
    Sketcher.Constraint("Equal", 10, 16),
    Sketcher.Constraint("Equal", 6, 20),
    Sketcher.Constraint("Equal", 18, 24),
    Sketcher.Constraint("Equal", 22, 28),
    Sketcher.Constraint("Equal", 26, 32),
    Sketcher.Constraint("Equal", 34, 36),
    Sketcher.Constraint("Equal", 38, 40),
    Sketcher.Constraint("Equal", 42, 44),
    Sketcher.Constraint("Equal", 71, 48),
    Sketcher.Constraint("Equal", 50, 52),
    Sketcher.Constraint("DistanceX", 1, 1, 1, 2, Q("9 mm")),
    Sketcher.Constraint("DistanceX", 9, 1, 9, 2, Q("4.5 mm")),
    Sketcher.Constraint("DistanceX", 17, 1, 17, 2, Q("3.5 mm")),
    Sketcher.Constraint("DistanceX", 33, 1, 33, 2, Q("5.5 mm")),
    Sketcher.Constraint("DistanceX", 12, 2, -1, 1, Q("79 mm")),
    Sketcher.Constraint("DistanceY", 16, 2, -1, 1, Q("139 mm")),
    Sketcher.Constraint("DistanceX", -1, 1, 0, 2, Q("99.5 mm")),
    Sketcher.Constraint("DistanceX", 4, 2, -1, 1, Q("113.5 mm")),
    Sketcher.Constraint("DistanceY", 8, 2, -1, 1, Q("148.5 mm")),
    Sketcher.Constraint("DistanceX", -1, 1, 20, 2, Q("192.5 mm")),
    Sketcher.Constraint("DistanceY", 24, 2, -1, 1, Q("198.5 mm")),
    Sketcher.Constraint("DistanceX", -1, 1, 28, 2, Q("41.5 mm")),
    Sketcher.Constraint("DistanceY", -1, 1, 32, 2, Q("229.5 mm")),
    Sketcher.Constraint("DistanceY", -1, 1, 36, 2, Q("148.5 mm")),
    Sketcher.Constraint("DistanceY", -1, 1, 40, 2, Q("90.5 mm")),
    Sketcher.Constraint("DistanceY", -1, 1, 44, 2, Q("9.5 mm")),
    Sketcher.Constraint("DistanceX", 48, 2, -1, 1, Q("229.5 mm")),
    Sketcher.Constraint("DistanceY", 0, 2, -1, 1, Q("67.75 mm")),
    Sketcher.Constraint("DistanceY", 4, 2, -1, 1, Q("67.55 mm")),
    Sketcher.Constraint("DistanceX", -1, 1, 8, 2, Q("194.75 mm")),
    Sketcher.Constraint("DistanceY", 12, 2, -1, 1, Q("232.25 mm")),
    Sketcher.Constraint("DistanceX", 16, 2, -1, 1, Q("229.75 mm")),
    Sketcher.Constraint("DistanceY", 20, 2, -1, 1, Q("200.75 mm")),
    Sketcher.Constraint("DistanceX", -1, 1, 24, 2, Q("43.75 mm")),
    Sketcher.Constraint("DistanceY", 28, 2, -1, 1, Q("150.75 mm")),
    Sketcher.Constraint("DistanceX", -1, 1, 32, 2, Q("97.25 mm")),
    Sketcher.Constraint("DistanceY", -1, 1, 48, 2, Q("192.75 mm")),
    Sketcher.Constraint("DistanceY", -1, 1, 52, 2, Q("47.75 mm")),
])
pocket2 = body.newObject("PartDesign::Pocket", "Pocket001")
pocket2.Profile = sketch3
pocket2.Type = "ThroughAll"
pocket2.Reversed = True

doc.recompute()
